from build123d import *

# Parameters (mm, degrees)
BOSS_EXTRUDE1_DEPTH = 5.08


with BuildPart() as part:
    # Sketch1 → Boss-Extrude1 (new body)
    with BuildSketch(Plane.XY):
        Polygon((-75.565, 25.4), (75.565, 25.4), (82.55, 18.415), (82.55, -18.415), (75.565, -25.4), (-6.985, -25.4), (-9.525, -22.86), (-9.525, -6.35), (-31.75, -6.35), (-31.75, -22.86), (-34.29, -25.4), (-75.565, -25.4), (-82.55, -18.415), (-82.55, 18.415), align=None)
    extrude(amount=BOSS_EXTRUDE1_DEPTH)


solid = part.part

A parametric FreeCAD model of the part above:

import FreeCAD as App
import Part
import Sketcher
Q = App.Units.Quantity

doc = App.newDocument("Part")
body = doc.addObject("PartDesign::Body", "Body")

sketch1 = body.newObject("Sketcher::SketchObject", "Sketch")
sketch1.AttachmentSupport = (doc.getObject("XY_Plane"), [""])
sketch1.MapMode = "FlatFace"
sketch1.addGeometry([
    Part.LineSegment(App.Vector(75.6, 25.4, 0), App.Vector(-75.6, 25.4, 0)),
    Part.LineSegment(App.Vector(-75.6, 25.4, 0), App.Vector(-82.5, 18.4, 0)),
    Part.LineSegment(App.Vector(-82.5, 18.4, 0), App.Vector(-82.5, -18.4, 0)),
    Part.LineSegment(App.Vector(-82.5, -18.4, 0), App.Vector(-75.6, -25.4, 0)),
    Part.LineSegment(App.Vector(-75.6, -25.4, 0), App.Vector(-34.3, -25.4, 0)),
    Part.LineSegment(App.Vector(-34.3, -25.4, 0), App.Vector(-31.8, -22.9, 0)),
    Part.LineSegment(App.Vector(-31.8, -22.9, 0), App.Vector(-31.8, -6.3, 0)),
    Part.LineSegment(App.Vector(-31.8, -6.3, 0), App.Vector(-9.5, -6.3, 0)),
    Part.LineSegment(App.Vector(-9.5, -6.3, 0), App.Vector(-9.5, -22.9, 0)),
    Part.LineSegment(App.Vector(-9.5, -22.9, 0), App.Vector(-7, -25.4, 0)),
    Part.LineSegment(App.Vector(-7, -25.4, 0), App.Vector(75.6, -25.4, 0)),
    Part.LineSegment(App.Vector(75.6, -25.4, 0), App.Vector(82.5, -18.4, 0)),
    Part.LineSegment(App.Vector(82.5, -18.4, 0), App.Vector(82.5, 18.4, 0)),
    Part.LineSegment(App.Vector(82.5, 18.4, 0), App.Vector(75.6, 25.4, 0)),
], False)
sketch1.addConstraint([
    Sketcher.Constraint("Coincident", 0, 2, 1, 1),
    Sketcher.Constraint("Coincident", 1, 2, 2, 1),
    Sketcher.Constraint("Coincident", 2, 2, 3, 1),
    Sketcher.Constraint("Coincident", 3, 2, 4, 1),
    Sketcher.Constraint("Coincident", 4, 2, 5, 1),
    Sketcher.Constraint("Coincident", 5, 2, 6, 1),
    Sketcher.Constraint("Coincident", 6, 2, 7, 1),
    Sketcher.Constraint("Coincident", 7, 2, 8, 1),
    Sketcher.Constraint("Coincident", 8, 2, 9, 1),
    Sketcher.Constraint("Coincident", 9, 2, 10, 1),
    Sketcher.Constraint("Coincident", 10, 2, 11, 1),
    Sketcher.Constraint("Coincident", 11, 2, 12, 1),
    Sketcher.Constraint("Coincident", 12, 2, 13, 1),
    Sketcher.Constraint("Coincident", 13, 2, 0, 1),
    Sketcher.Constraint("Horizontal", 0),
    Sketcher.Constraint("Vertical", 2),
    Sketcher.Constraint("Horizontal", 4),
    Sketcher.Constraint("Vertical", 6),
    Sketcher.Constraint("Horizontal", 7),
    Sketcher.Constraint("Vertical", 8),
    Sketcher.Constraint("Horizontal", 10),
    Sketcher.Constraint("Vertical", 12),
    Sketcher.Constraint("Symmetric", 0, 2, 10, 2, -1, 1),
    Sketcher.Constraint("Symmetric", 1, 2, 11, 2, -1, 1),
    Sketcher.Constraint("Symmetric", 3, 2, 13, 2, -1, 1),
    Sketcher.Constraint("Perpendicular", 1, 3),
    Sketcher.Constraint("Perpendicular", 3, 5),
    Sketcher.Constraint("Perpendicular", 5, 9),
    Sketcher.Constraint("Perpendicular", 11, 13),
    Sketcher.Constraint("Horizontal", 5, 2, 8, 2),
    Sketcher.Constraint("Horizontal", 2, 2, 11, 2),
    Sketcher.Constraint("Vertical", 0, 2, 3, 2),
    Sketcher.Constraint("DistanceY", -1, 1, 0, 2, Q("1 in")),
    Sketcher.Constraint("DistanceX", 2, 2, 5, 2, Q("2 in")),
    Sketcher.Constraint("DistanceX", 0, 2, 0, 1, Q("5.95 in")),
    Sketcher.Constraint("DistanceX", 10, 1, 10, 2, Q("3.25 in")),
    Sketcher.Constraint("DistanceY", 2, 2, 2, 1, Q("1.45 in")),
    Sketcher.Constraint("DistanceY", 6, 1, 6, 2, Q("0.65 in")),
    Sketcher.Constraint("DistanceY", 5, 2, -1, 1, Q("0.9 in")),
])
pad1 = body.newObject("PartDesign::Pad", "Pad")
pad1.Profile = sketch1
pad1.Length = Q("0.2 in")

doc.recompute()
